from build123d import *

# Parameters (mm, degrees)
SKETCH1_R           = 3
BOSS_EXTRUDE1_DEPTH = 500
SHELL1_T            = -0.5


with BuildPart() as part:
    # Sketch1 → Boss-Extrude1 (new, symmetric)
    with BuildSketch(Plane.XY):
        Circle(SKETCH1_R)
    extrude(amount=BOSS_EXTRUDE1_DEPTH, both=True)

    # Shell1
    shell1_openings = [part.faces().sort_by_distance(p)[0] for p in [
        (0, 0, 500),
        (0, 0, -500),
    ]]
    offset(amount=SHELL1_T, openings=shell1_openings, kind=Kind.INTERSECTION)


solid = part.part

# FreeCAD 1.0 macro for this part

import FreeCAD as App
import Part
import Sketcher

V = App.Vector


def faces_at(feature, points):
    """Names of the faces that lie closest to the given points."""
    faces = feature.Shape.Faces
    near = lambda p: min(range(len(faces)), key=lambda i: faces[i].distToShape(Part.Vertex(*p))[0])
    return sorted({f"Face{near(p) + 1}" for p in points})

doc = App.newDocument("Part")
params = doc.addObject("Spreadsheet::Sheet", "Params")
for row, (alias, value) in enumerate([
    ("sketch1_diameter", "6 mm"),
    ("pad1_length", "1000 mm"),
    ("thickness_wall", "0.5 mm"),
], start=1):
    params.set(f"A{row}", alias)
    params.set(f"B{row}", "=" + value)
    params.setAlias(f"B{row}", alias)

body = doc.addObject("PartDesign::Body", "Body")

# Sketch on XY plane
sketch1 = body.newObject("Sketcher::SketchObject", "Sketch")
sketch1.AttachmentSupport = (doc.getObject("XY_Plane"), [""])
sketch1.MapMode = "FlatFace"
sketch1.addGeometry(Part.Circle(V(0, 0, 0), V(0, 0, 1), 3), False)
sketch1.addConstraint(Sketcher.Constraint("Coincident", 0, 3, -1, 1))
sketch1.addConstraint(Sketcher.Constraint("Diameter", 0, 6.0))
sketch1.setExpression("Constraints[1]", "Params.sketch1_diameter")
pad1 = body.newObject("PartDesign::Pad", "Pad")
pad1.Profile = sketch1
pad1.setExpression("Length", "Params.pad1_length")
pad1.Midplane = True
doc.recompute()

thickness = body.newObject("PartDesign::Thickness", "Thickness")
thickness.Base = (pad1, faces_at(pad1, [(0, 0, 500), (0, 0, -500)]))
thickness.setExpression("Value", "Params.thickness_wall")
thickness.Reversed = True
thickness.Join = "Intersection"

doc.recompute()
